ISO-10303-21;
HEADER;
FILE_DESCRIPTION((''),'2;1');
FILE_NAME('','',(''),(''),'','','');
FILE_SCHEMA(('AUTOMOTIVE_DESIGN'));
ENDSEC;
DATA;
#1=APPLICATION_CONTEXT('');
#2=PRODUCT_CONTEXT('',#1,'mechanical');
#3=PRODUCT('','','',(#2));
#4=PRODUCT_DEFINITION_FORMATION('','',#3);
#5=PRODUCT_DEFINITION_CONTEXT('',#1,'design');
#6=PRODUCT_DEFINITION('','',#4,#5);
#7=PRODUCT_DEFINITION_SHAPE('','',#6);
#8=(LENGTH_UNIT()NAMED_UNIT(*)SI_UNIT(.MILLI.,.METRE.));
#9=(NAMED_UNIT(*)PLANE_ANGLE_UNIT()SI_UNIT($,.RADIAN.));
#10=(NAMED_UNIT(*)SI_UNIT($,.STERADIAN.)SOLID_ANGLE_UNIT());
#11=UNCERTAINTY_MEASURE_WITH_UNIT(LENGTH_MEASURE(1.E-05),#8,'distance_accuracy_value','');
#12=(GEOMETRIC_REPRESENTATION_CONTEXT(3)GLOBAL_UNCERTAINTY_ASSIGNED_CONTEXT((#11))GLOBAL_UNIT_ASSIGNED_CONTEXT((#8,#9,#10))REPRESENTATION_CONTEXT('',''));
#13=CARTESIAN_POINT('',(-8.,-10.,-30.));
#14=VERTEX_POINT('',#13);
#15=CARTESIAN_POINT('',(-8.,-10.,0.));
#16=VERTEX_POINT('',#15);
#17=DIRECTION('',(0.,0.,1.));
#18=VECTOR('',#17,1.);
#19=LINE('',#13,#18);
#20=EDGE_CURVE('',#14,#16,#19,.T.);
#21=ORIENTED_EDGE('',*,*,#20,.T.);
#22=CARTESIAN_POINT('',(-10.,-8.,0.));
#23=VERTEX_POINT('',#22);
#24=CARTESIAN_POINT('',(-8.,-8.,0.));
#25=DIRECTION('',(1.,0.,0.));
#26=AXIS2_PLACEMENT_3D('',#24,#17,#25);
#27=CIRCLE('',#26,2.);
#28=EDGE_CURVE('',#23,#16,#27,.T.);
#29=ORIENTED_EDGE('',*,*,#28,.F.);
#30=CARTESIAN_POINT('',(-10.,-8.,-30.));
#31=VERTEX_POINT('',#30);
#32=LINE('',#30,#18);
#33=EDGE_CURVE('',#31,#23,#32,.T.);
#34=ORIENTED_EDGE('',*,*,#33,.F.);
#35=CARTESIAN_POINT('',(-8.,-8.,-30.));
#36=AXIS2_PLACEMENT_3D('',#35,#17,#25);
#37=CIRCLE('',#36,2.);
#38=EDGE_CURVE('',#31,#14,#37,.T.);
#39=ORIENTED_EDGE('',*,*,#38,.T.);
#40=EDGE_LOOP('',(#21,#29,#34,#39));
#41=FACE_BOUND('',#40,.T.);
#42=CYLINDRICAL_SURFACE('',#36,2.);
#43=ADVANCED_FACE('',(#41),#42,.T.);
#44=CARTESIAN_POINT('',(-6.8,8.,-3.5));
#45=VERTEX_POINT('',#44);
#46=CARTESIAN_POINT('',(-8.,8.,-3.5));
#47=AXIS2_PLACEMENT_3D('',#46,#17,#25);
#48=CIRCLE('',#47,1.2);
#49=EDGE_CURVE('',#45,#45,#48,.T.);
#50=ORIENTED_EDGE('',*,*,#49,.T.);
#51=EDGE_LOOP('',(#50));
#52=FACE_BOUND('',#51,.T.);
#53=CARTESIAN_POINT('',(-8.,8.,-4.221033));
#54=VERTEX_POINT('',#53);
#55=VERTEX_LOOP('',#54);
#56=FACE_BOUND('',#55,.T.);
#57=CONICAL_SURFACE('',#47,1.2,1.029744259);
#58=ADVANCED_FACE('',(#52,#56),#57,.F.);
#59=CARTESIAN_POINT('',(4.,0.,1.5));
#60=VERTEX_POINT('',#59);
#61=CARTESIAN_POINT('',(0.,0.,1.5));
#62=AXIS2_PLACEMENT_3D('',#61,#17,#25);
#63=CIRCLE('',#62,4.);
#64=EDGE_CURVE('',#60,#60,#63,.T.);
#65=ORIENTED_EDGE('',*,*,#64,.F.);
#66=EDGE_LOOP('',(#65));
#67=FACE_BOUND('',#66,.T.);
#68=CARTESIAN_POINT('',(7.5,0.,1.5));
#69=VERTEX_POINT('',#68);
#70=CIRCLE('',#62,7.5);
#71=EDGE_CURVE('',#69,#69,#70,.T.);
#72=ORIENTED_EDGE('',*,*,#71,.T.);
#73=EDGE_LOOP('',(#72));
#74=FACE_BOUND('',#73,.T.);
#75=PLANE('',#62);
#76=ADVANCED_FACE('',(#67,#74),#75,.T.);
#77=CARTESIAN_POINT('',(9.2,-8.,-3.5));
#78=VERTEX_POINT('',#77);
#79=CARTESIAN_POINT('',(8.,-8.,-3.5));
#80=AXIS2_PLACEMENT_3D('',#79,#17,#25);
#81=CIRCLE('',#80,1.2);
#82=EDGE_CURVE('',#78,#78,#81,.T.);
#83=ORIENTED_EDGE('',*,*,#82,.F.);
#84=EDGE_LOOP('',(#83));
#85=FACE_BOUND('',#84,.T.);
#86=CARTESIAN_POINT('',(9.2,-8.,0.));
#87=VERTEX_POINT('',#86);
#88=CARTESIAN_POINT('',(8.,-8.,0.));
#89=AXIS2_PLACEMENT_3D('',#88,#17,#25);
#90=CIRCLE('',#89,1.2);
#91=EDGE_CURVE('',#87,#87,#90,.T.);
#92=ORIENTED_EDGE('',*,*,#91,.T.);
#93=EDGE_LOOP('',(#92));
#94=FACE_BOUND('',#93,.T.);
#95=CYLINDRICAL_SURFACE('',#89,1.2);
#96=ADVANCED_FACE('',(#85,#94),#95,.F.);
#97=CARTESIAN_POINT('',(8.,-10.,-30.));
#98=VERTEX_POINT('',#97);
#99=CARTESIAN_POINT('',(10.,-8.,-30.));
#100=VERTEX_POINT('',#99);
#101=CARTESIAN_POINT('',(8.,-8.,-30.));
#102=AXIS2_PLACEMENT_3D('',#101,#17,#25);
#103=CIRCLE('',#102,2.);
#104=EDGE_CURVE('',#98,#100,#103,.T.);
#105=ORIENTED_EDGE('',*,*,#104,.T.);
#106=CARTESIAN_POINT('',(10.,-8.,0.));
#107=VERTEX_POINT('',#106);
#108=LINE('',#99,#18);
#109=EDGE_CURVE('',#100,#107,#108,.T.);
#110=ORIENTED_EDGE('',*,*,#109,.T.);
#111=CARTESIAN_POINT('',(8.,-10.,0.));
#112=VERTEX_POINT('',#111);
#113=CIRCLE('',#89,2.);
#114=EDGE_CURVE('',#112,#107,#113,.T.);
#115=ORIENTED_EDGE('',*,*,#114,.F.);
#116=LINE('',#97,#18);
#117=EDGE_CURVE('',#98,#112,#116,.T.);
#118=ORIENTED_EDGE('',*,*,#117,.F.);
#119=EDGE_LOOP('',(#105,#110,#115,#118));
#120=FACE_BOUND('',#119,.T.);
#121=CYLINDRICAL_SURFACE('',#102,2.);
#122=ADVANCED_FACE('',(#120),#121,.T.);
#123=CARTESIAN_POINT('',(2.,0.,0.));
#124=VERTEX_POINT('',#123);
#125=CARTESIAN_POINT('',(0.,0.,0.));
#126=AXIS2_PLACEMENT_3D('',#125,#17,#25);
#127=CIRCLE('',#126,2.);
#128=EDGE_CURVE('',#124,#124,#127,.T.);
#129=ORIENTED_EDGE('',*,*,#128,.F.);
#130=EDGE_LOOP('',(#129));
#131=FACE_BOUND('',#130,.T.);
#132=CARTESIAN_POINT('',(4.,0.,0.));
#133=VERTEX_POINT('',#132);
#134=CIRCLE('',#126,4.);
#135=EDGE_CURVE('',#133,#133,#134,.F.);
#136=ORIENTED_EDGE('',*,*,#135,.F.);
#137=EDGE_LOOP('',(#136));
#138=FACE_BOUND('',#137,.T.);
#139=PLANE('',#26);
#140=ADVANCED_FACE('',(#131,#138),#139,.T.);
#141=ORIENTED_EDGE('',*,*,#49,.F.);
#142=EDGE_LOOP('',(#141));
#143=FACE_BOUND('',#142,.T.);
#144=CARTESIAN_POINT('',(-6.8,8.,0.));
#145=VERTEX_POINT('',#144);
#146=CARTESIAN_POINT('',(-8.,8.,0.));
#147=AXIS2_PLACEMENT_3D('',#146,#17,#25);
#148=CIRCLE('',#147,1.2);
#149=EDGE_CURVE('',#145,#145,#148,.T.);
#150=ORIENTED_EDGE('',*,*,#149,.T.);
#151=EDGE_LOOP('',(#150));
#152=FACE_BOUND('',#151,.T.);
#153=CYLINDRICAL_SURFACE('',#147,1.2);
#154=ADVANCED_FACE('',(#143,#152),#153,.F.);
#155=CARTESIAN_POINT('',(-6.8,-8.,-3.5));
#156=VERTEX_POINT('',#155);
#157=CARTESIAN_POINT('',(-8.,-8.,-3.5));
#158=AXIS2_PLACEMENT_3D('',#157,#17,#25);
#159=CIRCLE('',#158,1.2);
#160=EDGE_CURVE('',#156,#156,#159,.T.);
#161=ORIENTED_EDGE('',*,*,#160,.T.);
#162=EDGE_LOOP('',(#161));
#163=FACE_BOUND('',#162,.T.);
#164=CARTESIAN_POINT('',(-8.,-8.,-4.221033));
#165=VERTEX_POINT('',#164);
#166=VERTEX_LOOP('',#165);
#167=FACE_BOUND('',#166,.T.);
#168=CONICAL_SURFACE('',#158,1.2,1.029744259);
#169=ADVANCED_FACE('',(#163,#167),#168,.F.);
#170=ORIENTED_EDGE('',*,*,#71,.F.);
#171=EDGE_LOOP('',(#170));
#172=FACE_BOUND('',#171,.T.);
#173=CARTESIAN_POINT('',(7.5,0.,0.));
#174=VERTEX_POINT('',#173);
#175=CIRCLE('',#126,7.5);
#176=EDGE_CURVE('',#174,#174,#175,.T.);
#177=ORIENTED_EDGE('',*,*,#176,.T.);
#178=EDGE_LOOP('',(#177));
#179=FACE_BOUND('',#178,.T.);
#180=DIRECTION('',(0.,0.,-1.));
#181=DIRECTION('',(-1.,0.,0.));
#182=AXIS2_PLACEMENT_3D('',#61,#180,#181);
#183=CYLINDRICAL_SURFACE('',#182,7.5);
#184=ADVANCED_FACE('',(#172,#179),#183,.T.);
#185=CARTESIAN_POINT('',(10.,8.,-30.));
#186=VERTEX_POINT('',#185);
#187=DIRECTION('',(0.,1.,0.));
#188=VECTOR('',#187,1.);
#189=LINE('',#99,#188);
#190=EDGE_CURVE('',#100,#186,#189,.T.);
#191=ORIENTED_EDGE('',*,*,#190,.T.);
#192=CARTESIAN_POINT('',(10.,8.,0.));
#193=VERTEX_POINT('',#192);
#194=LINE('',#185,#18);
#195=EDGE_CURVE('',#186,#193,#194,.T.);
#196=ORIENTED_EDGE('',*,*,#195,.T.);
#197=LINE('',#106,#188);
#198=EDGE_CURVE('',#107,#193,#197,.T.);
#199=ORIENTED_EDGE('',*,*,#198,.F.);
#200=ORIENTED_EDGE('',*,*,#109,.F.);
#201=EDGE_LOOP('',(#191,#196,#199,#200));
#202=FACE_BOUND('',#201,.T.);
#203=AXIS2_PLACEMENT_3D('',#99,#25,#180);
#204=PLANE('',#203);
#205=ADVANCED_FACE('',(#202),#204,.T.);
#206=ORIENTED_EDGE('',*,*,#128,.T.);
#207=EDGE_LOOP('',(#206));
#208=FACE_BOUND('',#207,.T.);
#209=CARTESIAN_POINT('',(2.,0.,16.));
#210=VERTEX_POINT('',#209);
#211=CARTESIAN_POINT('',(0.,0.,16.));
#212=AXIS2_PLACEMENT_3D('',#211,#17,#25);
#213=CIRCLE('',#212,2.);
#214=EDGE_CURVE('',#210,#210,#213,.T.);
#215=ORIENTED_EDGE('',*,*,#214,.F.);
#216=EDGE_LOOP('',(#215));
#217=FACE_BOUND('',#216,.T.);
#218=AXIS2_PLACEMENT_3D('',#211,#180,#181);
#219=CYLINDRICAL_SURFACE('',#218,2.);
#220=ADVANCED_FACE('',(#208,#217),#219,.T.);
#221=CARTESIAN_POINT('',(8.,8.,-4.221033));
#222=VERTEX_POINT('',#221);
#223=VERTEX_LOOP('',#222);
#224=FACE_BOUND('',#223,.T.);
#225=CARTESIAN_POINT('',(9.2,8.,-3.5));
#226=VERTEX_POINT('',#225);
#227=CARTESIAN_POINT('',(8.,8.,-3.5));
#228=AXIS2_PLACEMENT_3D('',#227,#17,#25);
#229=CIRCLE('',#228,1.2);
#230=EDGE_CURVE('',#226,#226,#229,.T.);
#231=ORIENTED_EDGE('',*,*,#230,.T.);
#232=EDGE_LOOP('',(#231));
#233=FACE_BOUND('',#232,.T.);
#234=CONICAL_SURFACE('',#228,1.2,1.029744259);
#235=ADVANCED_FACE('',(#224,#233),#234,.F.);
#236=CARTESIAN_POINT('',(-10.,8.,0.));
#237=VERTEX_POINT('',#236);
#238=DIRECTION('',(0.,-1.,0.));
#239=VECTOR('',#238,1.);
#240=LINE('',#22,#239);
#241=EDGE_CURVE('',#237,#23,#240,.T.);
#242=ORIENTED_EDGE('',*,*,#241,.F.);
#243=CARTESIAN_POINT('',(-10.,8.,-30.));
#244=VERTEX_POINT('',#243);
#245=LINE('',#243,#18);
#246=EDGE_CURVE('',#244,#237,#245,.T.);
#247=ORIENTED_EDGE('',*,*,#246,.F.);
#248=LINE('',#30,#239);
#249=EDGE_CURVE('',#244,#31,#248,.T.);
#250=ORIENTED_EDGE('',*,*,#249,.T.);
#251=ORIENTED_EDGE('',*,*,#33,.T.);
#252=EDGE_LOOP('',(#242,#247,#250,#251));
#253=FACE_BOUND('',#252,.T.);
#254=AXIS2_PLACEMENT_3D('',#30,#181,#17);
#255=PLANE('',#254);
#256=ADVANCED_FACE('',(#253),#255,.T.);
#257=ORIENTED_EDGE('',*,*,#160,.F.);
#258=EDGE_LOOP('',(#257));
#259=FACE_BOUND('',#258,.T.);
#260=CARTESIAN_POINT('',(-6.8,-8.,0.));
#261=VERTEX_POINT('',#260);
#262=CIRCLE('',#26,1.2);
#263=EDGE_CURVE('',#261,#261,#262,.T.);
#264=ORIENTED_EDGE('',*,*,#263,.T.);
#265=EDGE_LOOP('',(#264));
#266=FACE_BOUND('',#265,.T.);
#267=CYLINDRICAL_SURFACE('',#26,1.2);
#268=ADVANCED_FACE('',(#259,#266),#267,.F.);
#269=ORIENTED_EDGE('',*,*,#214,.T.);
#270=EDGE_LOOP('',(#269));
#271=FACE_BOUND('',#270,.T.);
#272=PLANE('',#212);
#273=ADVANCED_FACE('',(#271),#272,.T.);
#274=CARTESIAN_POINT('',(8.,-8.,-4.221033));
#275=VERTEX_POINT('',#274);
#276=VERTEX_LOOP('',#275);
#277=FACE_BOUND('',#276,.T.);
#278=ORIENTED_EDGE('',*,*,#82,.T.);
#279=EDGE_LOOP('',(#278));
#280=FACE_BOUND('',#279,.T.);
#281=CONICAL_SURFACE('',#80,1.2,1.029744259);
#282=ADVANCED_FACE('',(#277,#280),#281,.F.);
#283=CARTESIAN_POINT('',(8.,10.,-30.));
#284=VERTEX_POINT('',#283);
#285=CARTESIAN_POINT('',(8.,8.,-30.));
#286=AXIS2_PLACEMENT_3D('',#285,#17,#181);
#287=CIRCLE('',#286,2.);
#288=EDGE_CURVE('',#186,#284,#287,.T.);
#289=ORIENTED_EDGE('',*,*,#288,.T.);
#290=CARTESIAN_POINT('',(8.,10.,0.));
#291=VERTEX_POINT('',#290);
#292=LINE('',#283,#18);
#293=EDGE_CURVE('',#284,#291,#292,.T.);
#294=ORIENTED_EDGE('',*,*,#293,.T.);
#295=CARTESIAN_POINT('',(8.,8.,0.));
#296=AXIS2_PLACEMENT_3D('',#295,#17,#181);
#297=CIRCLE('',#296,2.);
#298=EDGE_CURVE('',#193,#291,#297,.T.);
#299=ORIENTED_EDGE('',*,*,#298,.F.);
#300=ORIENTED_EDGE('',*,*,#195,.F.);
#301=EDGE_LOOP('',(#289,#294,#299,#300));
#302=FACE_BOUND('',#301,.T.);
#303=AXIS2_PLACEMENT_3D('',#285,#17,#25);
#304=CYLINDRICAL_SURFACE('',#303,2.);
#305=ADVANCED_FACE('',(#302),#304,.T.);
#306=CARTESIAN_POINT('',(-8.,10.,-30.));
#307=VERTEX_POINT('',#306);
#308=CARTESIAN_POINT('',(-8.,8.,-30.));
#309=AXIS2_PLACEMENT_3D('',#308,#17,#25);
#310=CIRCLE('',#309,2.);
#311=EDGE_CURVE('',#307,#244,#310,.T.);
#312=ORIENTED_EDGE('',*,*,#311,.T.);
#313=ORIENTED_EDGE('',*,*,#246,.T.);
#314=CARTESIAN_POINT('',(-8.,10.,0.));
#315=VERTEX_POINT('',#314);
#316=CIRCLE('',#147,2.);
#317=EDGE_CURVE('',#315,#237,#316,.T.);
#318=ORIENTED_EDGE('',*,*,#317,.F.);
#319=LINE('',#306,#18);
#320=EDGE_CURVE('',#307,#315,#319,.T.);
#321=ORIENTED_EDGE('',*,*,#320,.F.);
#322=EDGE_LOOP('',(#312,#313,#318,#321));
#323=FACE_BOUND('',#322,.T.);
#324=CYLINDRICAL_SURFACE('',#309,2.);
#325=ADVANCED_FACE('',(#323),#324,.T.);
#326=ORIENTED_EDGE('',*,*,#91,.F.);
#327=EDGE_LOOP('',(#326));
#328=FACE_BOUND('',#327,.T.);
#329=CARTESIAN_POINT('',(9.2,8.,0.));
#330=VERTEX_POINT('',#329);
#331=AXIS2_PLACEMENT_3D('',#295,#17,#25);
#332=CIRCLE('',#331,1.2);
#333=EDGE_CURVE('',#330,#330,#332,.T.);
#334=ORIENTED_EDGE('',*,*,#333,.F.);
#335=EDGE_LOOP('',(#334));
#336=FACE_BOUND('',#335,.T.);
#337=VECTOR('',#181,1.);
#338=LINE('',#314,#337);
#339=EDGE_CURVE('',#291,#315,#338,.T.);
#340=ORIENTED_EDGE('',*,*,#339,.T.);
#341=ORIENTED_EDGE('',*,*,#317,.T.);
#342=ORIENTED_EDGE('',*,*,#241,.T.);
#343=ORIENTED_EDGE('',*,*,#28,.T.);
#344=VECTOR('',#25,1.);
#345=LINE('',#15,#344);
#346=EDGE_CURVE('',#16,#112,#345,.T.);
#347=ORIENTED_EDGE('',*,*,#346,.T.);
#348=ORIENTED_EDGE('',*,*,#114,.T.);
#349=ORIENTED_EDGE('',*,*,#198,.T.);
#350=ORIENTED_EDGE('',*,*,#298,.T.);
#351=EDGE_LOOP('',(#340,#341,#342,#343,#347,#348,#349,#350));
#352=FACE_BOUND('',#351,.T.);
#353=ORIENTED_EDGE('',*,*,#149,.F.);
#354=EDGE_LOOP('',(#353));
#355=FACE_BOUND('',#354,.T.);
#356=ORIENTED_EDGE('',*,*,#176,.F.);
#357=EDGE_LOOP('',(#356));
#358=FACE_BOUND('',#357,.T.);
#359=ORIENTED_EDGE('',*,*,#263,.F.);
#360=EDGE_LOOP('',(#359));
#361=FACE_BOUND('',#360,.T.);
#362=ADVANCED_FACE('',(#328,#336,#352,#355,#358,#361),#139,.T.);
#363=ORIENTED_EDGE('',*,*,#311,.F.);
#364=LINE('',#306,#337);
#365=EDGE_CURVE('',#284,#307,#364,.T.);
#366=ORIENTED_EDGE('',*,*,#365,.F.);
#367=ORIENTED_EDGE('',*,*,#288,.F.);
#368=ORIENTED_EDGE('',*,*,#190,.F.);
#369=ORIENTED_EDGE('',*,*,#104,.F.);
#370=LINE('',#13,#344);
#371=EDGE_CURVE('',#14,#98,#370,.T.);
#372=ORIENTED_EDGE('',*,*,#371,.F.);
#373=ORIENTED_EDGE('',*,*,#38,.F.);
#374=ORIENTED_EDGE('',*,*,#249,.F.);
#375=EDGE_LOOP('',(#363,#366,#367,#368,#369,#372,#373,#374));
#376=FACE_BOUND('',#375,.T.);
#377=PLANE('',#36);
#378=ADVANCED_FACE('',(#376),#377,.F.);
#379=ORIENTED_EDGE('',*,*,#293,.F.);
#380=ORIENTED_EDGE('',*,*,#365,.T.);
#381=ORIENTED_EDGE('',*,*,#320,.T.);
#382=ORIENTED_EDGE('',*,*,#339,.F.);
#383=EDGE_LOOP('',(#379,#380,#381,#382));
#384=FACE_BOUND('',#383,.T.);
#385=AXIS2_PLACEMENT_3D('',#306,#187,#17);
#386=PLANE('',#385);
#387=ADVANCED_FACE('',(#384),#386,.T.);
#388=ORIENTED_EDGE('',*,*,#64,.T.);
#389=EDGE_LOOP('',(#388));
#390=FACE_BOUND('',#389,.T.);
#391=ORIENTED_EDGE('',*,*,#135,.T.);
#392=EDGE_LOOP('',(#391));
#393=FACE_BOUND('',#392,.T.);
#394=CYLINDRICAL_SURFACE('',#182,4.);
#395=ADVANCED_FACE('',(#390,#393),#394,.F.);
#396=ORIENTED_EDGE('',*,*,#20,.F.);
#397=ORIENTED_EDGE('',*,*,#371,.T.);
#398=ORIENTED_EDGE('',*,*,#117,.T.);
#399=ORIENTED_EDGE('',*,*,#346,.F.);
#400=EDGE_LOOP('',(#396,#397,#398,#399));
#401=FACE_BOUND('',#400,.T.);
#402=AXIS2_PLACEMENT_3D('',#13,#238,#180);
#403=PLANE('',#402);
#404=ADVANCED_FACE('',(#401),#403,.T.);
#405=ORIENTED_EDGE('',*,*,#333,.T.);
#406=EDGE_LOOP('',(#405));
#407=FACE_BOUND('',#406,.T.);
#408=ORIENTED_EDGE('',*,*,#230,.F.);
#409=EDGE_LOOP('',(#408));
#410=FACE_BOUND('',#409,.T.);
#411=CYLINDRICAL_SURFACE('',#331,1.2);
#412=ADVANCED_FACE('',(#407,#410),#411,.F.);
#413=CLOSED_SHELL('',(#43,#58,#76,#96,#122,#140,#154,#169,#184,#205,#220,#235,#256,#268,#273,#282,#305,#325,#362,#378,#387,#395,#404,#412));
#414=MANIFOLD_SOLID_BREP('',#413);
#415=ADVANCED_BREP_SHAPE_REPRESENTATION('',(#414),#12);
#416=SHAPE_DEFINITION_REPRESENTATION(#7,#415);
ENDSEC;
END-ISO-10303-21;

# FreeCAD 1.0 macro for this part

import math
import FreeCAD as App
import Part
import Sketcher
from FreeCAD import Vector

doc = App.newDocument("Part")
body = doc.addObject("PartDesign::Body", "Body")

sketch1 = body.newObject("Sketcher::SketchObject", "Sketch")
sketch1.AttachmentSupport = (doc.getObject("XY_Plane"), [""])
sketch1.MapMode = "FlatFace"
sketch1.addGeometry([
    Part.LineSegment(Vector(-8, -10, 0), Vector(8, -10, 0)),
    Part.ArcOfCircle(Part.Circle(Vector(8, -8, 0), Vector(0, 0, 1), 2), math.radians(-90), math.radians(0)),
    Part.LineSegment(Vector(10, -8, 0), Vector(10, 8, 0)),
    Part.ArcOfCircle(Part.Circle(Vector(8, 8, 0), Vector(0, 0, 1), 2), math.radians(0), math.radians(90)),
    Part.LineSegment(Vector(8, 10, 0), Vector(-8, 10, 0)),
    Part.ArcOfCircle(Part.Circle(Vector(-8, 8, 0), Vector(0, 0, 1), 2), math.radians(90), math.radians(180)),
    Part.LineSegment(Vector(-10, 8, 0), Vector(-10, -8, 0)),
    Part.ArcOfCircle(Part.Circle(Vector(-8, -8, 0), Vector(0, 0, 1), 2), math.radians(-180), math.radians(-90)),
], False)
sketch1.addConstraint([
    Sketcher.Constraint("Tangent", 0, 2, 1, 1),
    Sketcher.Constraint("Tangent", 1, 2, 2, 1),
    Sketcher.Constraint("Tangent", 2, 2, 3, 1),
    Sketcher.Constraint("Tangent", 3, 2, 4, 1),
    Sketcher.Constraint("Tangent", 4, 2, 5, 1),
    Sketcher.Constraint("Tangent", 5, 2, 6, 1),
    Sketcher.Constraint("Tangent", 6, 2, 7, 1),
    Sketcher.Constraint("Tangent", 7, 2, 0, 1),
    Sketcher.Constraint("Horizontal", 0),
    Sketcher.Constraint("Vertical", 2),
    Sketcher.Constraint("Horizontal", 4),
    Sketcher.Constraint("Vertical", 6),
    Sketcher.Constraint("Equal", 1, 3),
    Sketcher.Constraint("Equal", 3, 5),
    Sketcher.Constraint("Equal", 5, 7),
    Sketcher.Constraint("Symmetric", 1, 3, 5, 3, -1, 1),
    Sketcher.Constraint("Equal", 4, 2),
    Sketcher.Constraint("Radius", 1, 2.0),
    Sketcher.Constraint("DistanceX", 0, 1, 0, 2, 16.0),
])
pad1 = body.newObject("PartDesign::Pad", "Pad")
pad1.Profile = sketch1
pad1.Length = 30
pad1.Reversed = True

sketch2 = body.newObject("Sketcher::SketchObject", "Sketch001")
sketch2.AttachmentSupport = (doc.getObject("XY_Plane"), [""])
sketch2.MapMode = "FlatFace"
sketch2.addGeometry([
    Part.Circle(Vector(0, 0, 0), Vector(0, 0, 1), 7.5),
    Part.Circle(Vector(0, 0, 0), Vector(0, 0, 1), 4),
], False)
sketch2.addConstraint([
    Sketcher.Constraint("Coincident", 0, 3, -1, 1),
    Sketcher.Constraint("Coincident", 1, 3, -1, 1),
    Sketcher.Constraint("Diameter", 0, 15.0),
    Sketcher.Constraint("Diameter", 1, 8.0),
])
pad2 = body.newObject("PartDesign::Pad", "Pad001")
pad2.Profile = sketch2
pad2.Length = 1.5

sketch3 = body.newObject("Sketcher::SketchObject", "Sketch002")
sketch3.AttachmentSupport = (doc.getObject("XY_Plane"), [""])
sketch3.MapMode = "FlatFace"
sketch3.addGeometry(Part.Circle(Vector(0, 0, 0), Vector(0, 0, 1), 2), False)
sketch3.addConstraint([
    Sketcher.Constraint("Coincident", 0, 3, -1, 1),
    Sketcher.Constraint("Diameter", 0, 4.0),
])
pad3 = body.newObject("PartDesign::Pad", "Pad002")
pad3.Profile = sketch3
pad3.Length = 16

sketch4 = body.newObject("Sketcher::SketchObject", "Sketch003")
sketch4.AttachmentSupport = (doc.getObject("XY_Plane"), [""])
sketch4.MapMode = "FlatFace"
sketch4.addGeometry([
    Part.Circle(Vector(-8, 8, 0), Vector(0, 0, 1), 1.2),
    Part.Circle(Vector(8, 8, 0), Vector(0, 0, 1), 1.2),
    Part.Circle(Vector(8, -8, 0), Vector(0, 0, 1), 1.2),
    Part.Circle(Vector(-8, -8, 0), Vector(0, 0, 1), 1.2),
], False)
sketch4.addConstraint([
    Sketcher.Constraint("Equal", 0, 1),
    Sketcher.Constraint("Equal", 1, 2),
    Sketcher.Constraint("Equal", 2, 3),
    Sketcher.Constraint("Symmetric", 0, 3, 2, 3, -1, 1),
    Sketcher.Constraint("Symmetric", 1, 3, 3, 3, -1, 1),
    Sketcher.Constraint("Symmetric", 0, 3, 1, 3, -2),
    Sketcher.Constraint("Diameter", 0, 2.4),
    Sketcher.Constraint("DistanceX", 0, 3, -1, 1, 8.0),
    Sketcher.Constraint("DistanceY", -1, 1, 0, 3, 8.0),
])
doc.recompute()
hole = body.newObject("PartDesign::Hole", "Hole")
hole.Profile = sketch4
hole.ThreadType = "None"
hole.Diameter = 2.4
hole.DepthType = "Dimension"
hole.Depth = 3.5
hole.DrillPoint = "Angled"
hole.DrillPointAngle = 118

doc.recompute()
